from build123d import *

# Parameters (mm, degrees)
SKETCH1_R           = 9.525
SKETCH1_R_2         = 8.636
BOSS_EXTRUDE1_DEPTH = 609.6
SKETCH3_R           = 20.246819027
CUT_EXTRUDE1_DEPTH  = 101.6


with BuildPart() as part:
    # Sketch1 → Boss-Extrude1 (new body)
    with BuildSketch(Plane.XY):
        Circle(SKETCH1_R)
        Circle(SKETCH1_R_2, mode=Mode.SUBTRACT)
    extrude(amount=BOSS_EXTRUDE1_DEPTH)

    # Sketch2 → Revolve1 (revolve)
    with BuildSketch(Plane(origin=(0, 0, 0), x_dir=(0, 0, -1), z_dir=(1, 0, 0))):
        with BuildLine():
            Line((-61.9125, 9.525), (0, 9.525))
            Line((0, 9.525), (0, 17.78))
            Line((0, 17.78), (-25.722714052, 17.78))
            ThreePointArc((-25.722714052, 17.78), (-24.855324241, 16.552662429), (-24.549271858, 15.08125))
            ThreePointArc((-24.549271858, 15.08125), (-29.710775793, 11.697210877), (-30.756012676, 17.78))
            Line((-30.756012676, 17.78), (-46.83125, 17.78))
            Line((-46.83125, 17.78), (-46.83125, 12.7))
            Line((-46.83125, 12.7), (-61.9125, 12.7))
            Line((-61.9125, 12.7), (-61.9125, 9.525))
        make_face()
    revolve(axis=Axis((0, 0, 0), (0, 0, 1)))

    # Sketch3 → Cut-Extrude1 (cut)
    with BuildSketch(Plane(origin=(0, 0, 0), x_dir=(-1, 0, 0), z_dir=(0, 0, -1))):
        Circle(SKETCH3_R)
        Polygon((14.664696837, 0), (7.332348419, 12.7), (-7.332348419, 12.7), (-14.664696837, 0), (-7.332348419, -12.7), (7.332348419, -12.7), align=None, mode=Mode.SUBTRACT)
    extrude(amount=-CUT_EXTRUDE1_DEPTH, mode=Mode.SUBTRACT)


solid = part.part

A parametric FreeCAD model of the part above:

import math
import FreeCAD as App
import Part
import Sketcher

V = App.Vector
Q = App.Units.Quantity


def add_polygon(sketch, points):
    """Adds a closed chain of lines whose ends are joined by coincident constraints."""
    first, n = sketch.GeometryCount, len(points)
    for a, b in zip(points, points[1:] + points[:1]):
        sketch.addGeometry(Part.LineSegment(App.Vector(*a, 0), App.Vector(*b, 0)), False)
    for i in range(n):
        sketch.addConstraint(Sketcher.Constraint("Coincident", first + i, 2, first + (i + 1) % n, 1))

doc = App.newDocument("Part")
body = doc.addObject("PartDesign::Body", "Body")

# Sketch on XY plane
sketch1 = doc.addObject("Sketcher::SketchObject", "Sketch")
body.addObject(sketch1)
sketch1.AttachmentSupport = (doc.XY_Plane, [""])
sketch1.MapMode = "FlatFace"
sketch1.addGeometry(Part.Circle(V(0, 0, 0), V(0, 0, 1), 10), False)
sketch1.addGeometry(Part.Circle(V(0, 0, 0), V(0, 0, 1), 9), False)
sketch1.addConstraint(Sketcher.Constraint("Coincident", 0, 3, -1, 1))
sketch1.addConstraint(Sketcher.Constraint("Coincident", 1, 3, -1, 1))
sketch1.addConstraint(Sketcher.Constraint("Diameter", 0, Q("0.75 in")))
sketch1.addConstraint(Sketcher.Constraint("Diameter", 1, Q("0.68 in")))
pad1 = doc.addObject("PartDesign::Pad", "Pad")
body.addObject(pad1)
pad1.Profile = sketch1
pad1.Length = Q("24 in")

# Sketch on YZ plane
sketch2 = doc.addObject("Sketcher::SketchObject", "Sketch001")
body.addObject(sketch2)
sketch2.AttachmentSupport = (doc.YZ_Plane, [""])
sketch2.MapMode = "FlatFace"
sketch2.addGeometry(Part.LineSegment(V(9.5, 61.9, 0), V(9.5, 0, 0)), False)
sketch2.addGeometry(Part.LineSegment(V(9.5, 0, 0), V(17.8, 0, 0)), False)
sketch2.addGeometry(Part.LineSegment(V(17.8, 0, 0), V(17.8, 25.7, 0)), False)
sketch2.addGeometry(Part.ArcOfCircle(Part.Circle(V(15.1, 28.2, 0), V(0, 0, 1), 3.7), math.radians(-90), math.radians(-43)), False)
sketch2.addGeometry(Part.ArcOfCircle(Part.Circle(V(15.1, 28.2, 0), V(0, 0, 1), 3.7), math.radians(43), math.radians(270)), False)
sketch2.addGeometry(Part.LineSegment(V(17.8, 30.8, 0), V(17.8, 46.8, 0)), False)
sketch2.addGeometry(Part.LineSegment(V(17.8, 46.8, 0), V(12.7, 46.8, 0)), False)
sketch2.addGeometry(Part.LineSegment(V(12.7, 46.8, 0), V(12.7, 61.9, 0)), False)
sketch2.addGeometry(Part.LineSegment(V(12.7, 61.9, 0), V(9.5, 61.9, 0)), False)
sketch2.addConstraint(Sketcher.Constraint("Coincident", 0, 2, 1, 1))
sketch2.addConstraint(Sketcher.Constraint("Coincident", 1, 2, 2, 1))
sketch2.addConstraint(Sketcher.Constraint("Coincident", 2, 2, 3, 2))
sketch2.addConstraint(Sketcher.Constraint("Tangent", 3, 1, 4, 2))
sketch2.addConstraint(Sketcher.Constraint("Coincident", 4, 1, 5, 1))
sketch2.addConstraint(Sketcher.Constraint("Coincident", 5, 2, 6, 1))
sketch2.addConstraint(Sketcher.Constraint("Coincident", 6, 2, 7, 1))
sketch2.addConstraint(Sketcher.Constraint("Coincident", 7, 2, 8, 1))
sketch2.addConstraint(Sketcher.Constraint("Coincident", 8, 2, 0, 1))
sketch2.addConstraint(Sketcher.Constraint("Vertical", 0))
sketch2.addConstraint(Sketcher.Constraint("Horizontal", 1))
sketch2.addConstraint(Sketcher.Constraint("Vertical", 2))
sketch2.addConstraint(Sketcher.Constraint("Vertical", 5))
sketch2.addConstraint(Sketcher.Constraint("Horizontal", 6))
sketch2.addConstraint(Sketcher.Constraint("Vertical", 7))
sketch2.addConstraint(Sketcher.Constraint("Horizontal", 8))
sketch2.addConstraint(Sketcher.Constraint("Equal", 3, 4))
sketch2.addConstraint(Sketcher.Constraint("PointOnObject", 0, 2, -1))
sketch2.addConstraint(Sketcher.Constraint("Vertical", 4, 3, 3, 1))
sketch2.addConstraint(Sketcher.Constraint("Vertical", 2, 2, 4, 1))
sketch2.addConstraint(Sketcher.Constraint("DistanceX", 6, 2, 6, 1, Q("0.2 in")))
sketch2.addConstraint(Sketcher.Constraint("DistanceX", -1, 1, 1, 2, Q("0.7 in")))
sketch2.addConstraint(Sketcher.Constraint("DistanceX", 1, 1, 1, 2, Q("0.325 in")))
sketch2.addConstraint(Sketcher.Constraint("DistanceY", 0, 2, 0, 1, Q("2.4375 in")))
sketch2.addConstraint(Sketcher.Constraint("DistanceY", 7, 1, 7, 2, Q("0.59375 in")))
sketch2.addConstraint(Sketcher.Constraint("DistanceX", -1, 1, 3, 3, Q("0.59375 in")))
sketch2.addConstraint(Sketcher.Constraint("Radius", 3, Q("3.690092 mm")))
sketch2.addConstraint(Sketcher.Constraint("DistanceY", 2, 1, 2, 2, Q("25.722714 mm")))
revolution = doc.addObject("PartDesign::Revolution", "Revolution")
body.addObject(revolution)
revolution.Profile = sketch2
revolution.ReferenceAxis = (sketch2, ["V_Axis"])
revolution.Angle = 360

# Sketch on XY plane
sketch3 = doc.addObject("Sketcher::SketchObject", "Sketch002")
body.addObject(sketch3)
sketch3.AttachmentSupport = (doc.XY_Plane, [""])
sketch3.MapMode = "FlatFace"
sketch3.addGeometry(Part.Circle(V(0, 0, 0), V(0, 0, 1), 20), False)  # 0
add_polygon(sketch3, [(-7, 13), (-15, 0), (-7, -13), (7, -13), (15, 0), (7, 13)])  # lines 1-6
sketch3.addConstraint(Sketcher.Constraint("Horizontal", 3))
sketch3.addConstraint(Sketcher.Constraint("Horizontal", 6))
sketch3.addConstraint(Sketcher.Constraint("Coincident", 0, 3, -1, 1))
sketch3.addConstraint(Sketcher.Constraint("Symmetric", 1, 2, 4, 2, -1, 1))
sketch3.addConstraint(Sketcher.Constraint("Symmetric", 2, 2, 5, 2, -1, 1))
sketch3.addConstraint(Sketcher.Constraint("PointOnObject", 1, 2, -1))
sketch3.addConstraint(Sketcher.Constraint("Parallel", 1, 4))
sketch3.addConstraint(Sketcher.Constraint("Vertical", 3, 2, 5, 2))
sketch3.addConstraint(Sketcher.Constraint("Angle", 1, Q("-120 deg")))
sketch3.addConstraint(Sketcher.Constraint("DistanceY", 3, 2, 5, 2, Q("1 in")))
sketch3.addConstraint(Sketcher.Constraint("Diameter", 0, Q("40.493638 mm")))
sketch3.addConstraint(Sketcher.Constraint("DistanceX", 3, 1, 3, 2, Q("14.664697 mm")))
pocket1 = doc.addObject("PartDesign::Pocket", "Pocket")
body.addObject(pocket1)
pocket1.Profile = sketch3
pocket1.Length = Q("4 in")
pocket1.Reversed = True

doc.recompute()
